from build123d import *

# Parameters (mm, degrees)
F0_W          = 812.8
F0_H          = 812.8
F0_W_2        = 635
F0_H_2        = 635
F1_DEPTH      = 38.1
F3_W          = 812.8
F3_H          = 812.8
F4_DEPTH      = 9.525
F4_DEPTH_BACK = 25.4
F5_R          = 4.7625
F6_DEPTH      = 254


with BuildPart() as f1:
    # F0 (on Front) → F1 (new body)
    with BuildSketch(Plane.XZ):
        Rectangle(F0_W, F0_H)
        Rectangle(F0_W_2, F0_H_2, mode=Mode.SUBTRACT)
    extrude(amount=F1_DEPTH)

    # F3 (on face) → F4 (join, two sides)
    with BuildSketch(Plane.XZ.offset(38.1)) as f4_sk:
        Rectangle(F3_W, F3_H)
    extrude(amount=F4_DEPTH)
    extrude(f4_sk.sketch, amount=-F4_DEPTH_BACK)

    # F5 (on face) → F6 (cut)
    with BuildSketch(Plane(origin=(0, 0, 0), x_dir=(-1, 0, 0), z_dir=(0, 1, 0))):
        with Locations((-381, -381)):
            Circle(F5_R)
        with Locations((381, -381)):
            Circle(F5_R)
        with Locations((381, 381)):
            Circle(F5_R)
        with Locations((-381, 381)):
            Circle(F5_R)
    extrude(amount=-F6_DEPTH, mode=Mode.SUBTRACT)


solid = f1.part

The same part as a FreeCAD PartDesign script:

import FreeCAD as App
import Part
import Sketcher

V = App.Vector
Q = App.Units.Quantity

doc = App.newDocument("Part")
body = doc.addObject("PartDesign::Body", "Body")

# Sketch on XZ plane
sketch1 = body.newObject("Sketcher::SketchObject", "Sketch")
sketch1.AttachmentSupport = (doc.getObject("XZ_Plane"), [""])
sketch1.MapMode = "FlatFace"
sketch1.addGeometry([
    Part.LineSegment(V(-406, 406, 0), V(-406, -406, 0)),  # 0
    Part.LineSegment(V(-406, -406, 0), V(406, -406, 0)),  # 1
    Part.LineSegment(V(406, -406, 0), V(406, 406, 0)),  # 2
    Part.LineSegment(V(406, 406, 0), V(-406, 406, 0)),  # 3
    Part.LineSegment(V(318, -318, 0), V(-318, -318, 0)),  # 4
    Part.LineSegment(V(-318, -318, 0), V(-318, 318, 0)),  # 5
    Part.LineSegment(V(-318, 318, 0), V(318, 318, 0)),  # 6
    Part.LineSegment(V(318, 318, 0), V(318, -318, 0)),  # 7
], False)
sketch1.addConstraint([
    Sketcher.Constraint("Coincident", 0, 2, 1, 1),
    Sketcher.Constraint("Coincident", 1, 2, 2, 1),
    Sketcher.Constraint("Coincident", 2, 2, 3, 1),
    Sketcher.Constraint("Coincident", 3, 2, 0, 1),
    Sketcher.Constraint("Coincident", 4, 2, 5, 1),
    Sketcher.Constraint("Coincident", 5, 2, 6, 1),
    Sketcher.Constraint("Coincident", 6, 2, 7, 1),
    Sketcher.Constraint("Coincident", 7, 2, 4, 1),
    Sketcher.Constraint("Vertical", 0),
    Sketcher.Constraint("Horizontal", 1),
    Sketcher.Constraint("Vertical", 2),
    Sketcher.Constraint("Horizontal", 3),
    Sketcher.Constraint("Horizontal", 4),
    Sketcher.Constraint("Vertical", 5),
    Sketcher.Constraint("Horizontal", 6),
    Sketcher.Constraint("Vertical", 7),
    Sketcher.Constraint("Symmetric", 0, 2, 2, 2, -1, 1),
    Sketcher.Constraint("Symmetric", 4, 2, 6, 2, -1, 1),
    Sketcher.Constraint("Equal", 3, 0),
    Sketcher.Constraint("Equal", 6, 5),
    Sketcher.Constraint("DistanceX", 1, 1, 1, 2, Q("32 in")),
    Sketcher.Constraint("DistanceX", 4, 2, 4, 1, Q("25 in")),
])
pad1 = body.newObject("PartDesign::Pad", "Pad")
pad1.Profile = sketch1
pad1.Length = Q("1.5 in")

# Sketch on XZ plane
sketch2 = body.newObject("Sketcher::SketchObject", "Sketch001")
sketch2.AttachmentSupport = (doc.getObject("XZ_Plane"), [""])
sketch2.MapMode = "FlatFace"
sketch2.AttachmentOffset = App.Placement(V(0, 0, 1.5 * 25.4), App.Rotation())
sketch2.addGeometry([
    Part.LineSegment(V(-406, 406, 0), V(-406, -406, 0)),
    Part.LineSegment(V(-406, -406, 0), V(406, -406, 0)),
    Part.LineSegment(V(406, -406, 0), V(406, 406, 0)),
    Part.LineSegment(V(406, 406, 0), V(-406, 406, 0)),
], False)
sketch2.addConstraint([
    Sketcher.Constraint("Coincident", 0, 2, 1, 1),
    Sketcher.Constraint("Coincident", 1, 2, 2, 1),
    Sketcher.Constraint("Coincident", 2, 2, 3, 1),
    Sketcher.Constraint("Coincident", 3, 2, 0, 1),
    Sketcher.Constraint("Vertical", 0),
    Sketcher.Constraint("Horizontal", 1),
    Sketcher.Constraint("Vertical", 2),
    Sketcher.Constraint("Horizontal", 3),
    Sketcher.Constraint("Symmetric", 0, 2, 2, 2, -1, 1),
    Sketcher.Constraint("Equal", 3, 0),
    Sketcher.Constraint("DistanceX", 1, 1, 1, 2, Q("32 in")),
])
pad2 = body.newObject("PartDesign::Pad", "Pad001")
pad2.Profile = sketch2
pad2.Type = "TwoLengths"
pad2.Length = Q("0.375 in")
pad2.Length2 = Q("1 in")

# Sketch on XZ plane
sketch3 = body.newObject("Sketcher::SketchObject", "Sketch002")
sketch3.AttachmentSupport = (doc.getObject("XZ_Plane"), [""])
sketch3.MapMode = "FlatFace"
sketch3.addGeometry([
    Part.Circle(V(381, -381, 0), V(0, 0, 1), 4.8),
    Part.Circle(V(-381, -381, 0), V(0, 0, 1), 4.8),
    Part.Circle(V(-381, 381, 0), V(0, 0, 1), 4.8),
    Part.Circle(V(381, 381, 0), V(0, 0, 1), 4.8),
], False)
sketch3.addConstraint([
    Sketcher.Constraint("Equal", 0, 1),
    Sketcher.Constraint("Equal", 1, 2),
    Sketcher.Constraint("Equal", 2, 3),
    Sketcher.Constraint("Symmetric", 0, 3, 2, 3, -1, 1),
    Sketcher.Constraint("Symmetric", 1, 3, 3, 3, -1, 1),
    Sketcher.Constraint("Symmetric", 0, 3, 1, 3, -2),
    Sketcher.Constraint("Diameter", 0, Q("0.375 in")),
    Sketcher.Constraint("DistanceX", -1, 1, 0, 3, Q("15 in")),
    Sketcher.Constraint("DistanceY", 0, 3, -1, 1, Q("15 in")),
])
pocket1 = body.newObject("PartDesign::Pocket", "Pocket")
pocket1.Profile = sketch3
pocket1.Length = Q("10 in")
pocket1.Reversed = True

doc.recompute()
